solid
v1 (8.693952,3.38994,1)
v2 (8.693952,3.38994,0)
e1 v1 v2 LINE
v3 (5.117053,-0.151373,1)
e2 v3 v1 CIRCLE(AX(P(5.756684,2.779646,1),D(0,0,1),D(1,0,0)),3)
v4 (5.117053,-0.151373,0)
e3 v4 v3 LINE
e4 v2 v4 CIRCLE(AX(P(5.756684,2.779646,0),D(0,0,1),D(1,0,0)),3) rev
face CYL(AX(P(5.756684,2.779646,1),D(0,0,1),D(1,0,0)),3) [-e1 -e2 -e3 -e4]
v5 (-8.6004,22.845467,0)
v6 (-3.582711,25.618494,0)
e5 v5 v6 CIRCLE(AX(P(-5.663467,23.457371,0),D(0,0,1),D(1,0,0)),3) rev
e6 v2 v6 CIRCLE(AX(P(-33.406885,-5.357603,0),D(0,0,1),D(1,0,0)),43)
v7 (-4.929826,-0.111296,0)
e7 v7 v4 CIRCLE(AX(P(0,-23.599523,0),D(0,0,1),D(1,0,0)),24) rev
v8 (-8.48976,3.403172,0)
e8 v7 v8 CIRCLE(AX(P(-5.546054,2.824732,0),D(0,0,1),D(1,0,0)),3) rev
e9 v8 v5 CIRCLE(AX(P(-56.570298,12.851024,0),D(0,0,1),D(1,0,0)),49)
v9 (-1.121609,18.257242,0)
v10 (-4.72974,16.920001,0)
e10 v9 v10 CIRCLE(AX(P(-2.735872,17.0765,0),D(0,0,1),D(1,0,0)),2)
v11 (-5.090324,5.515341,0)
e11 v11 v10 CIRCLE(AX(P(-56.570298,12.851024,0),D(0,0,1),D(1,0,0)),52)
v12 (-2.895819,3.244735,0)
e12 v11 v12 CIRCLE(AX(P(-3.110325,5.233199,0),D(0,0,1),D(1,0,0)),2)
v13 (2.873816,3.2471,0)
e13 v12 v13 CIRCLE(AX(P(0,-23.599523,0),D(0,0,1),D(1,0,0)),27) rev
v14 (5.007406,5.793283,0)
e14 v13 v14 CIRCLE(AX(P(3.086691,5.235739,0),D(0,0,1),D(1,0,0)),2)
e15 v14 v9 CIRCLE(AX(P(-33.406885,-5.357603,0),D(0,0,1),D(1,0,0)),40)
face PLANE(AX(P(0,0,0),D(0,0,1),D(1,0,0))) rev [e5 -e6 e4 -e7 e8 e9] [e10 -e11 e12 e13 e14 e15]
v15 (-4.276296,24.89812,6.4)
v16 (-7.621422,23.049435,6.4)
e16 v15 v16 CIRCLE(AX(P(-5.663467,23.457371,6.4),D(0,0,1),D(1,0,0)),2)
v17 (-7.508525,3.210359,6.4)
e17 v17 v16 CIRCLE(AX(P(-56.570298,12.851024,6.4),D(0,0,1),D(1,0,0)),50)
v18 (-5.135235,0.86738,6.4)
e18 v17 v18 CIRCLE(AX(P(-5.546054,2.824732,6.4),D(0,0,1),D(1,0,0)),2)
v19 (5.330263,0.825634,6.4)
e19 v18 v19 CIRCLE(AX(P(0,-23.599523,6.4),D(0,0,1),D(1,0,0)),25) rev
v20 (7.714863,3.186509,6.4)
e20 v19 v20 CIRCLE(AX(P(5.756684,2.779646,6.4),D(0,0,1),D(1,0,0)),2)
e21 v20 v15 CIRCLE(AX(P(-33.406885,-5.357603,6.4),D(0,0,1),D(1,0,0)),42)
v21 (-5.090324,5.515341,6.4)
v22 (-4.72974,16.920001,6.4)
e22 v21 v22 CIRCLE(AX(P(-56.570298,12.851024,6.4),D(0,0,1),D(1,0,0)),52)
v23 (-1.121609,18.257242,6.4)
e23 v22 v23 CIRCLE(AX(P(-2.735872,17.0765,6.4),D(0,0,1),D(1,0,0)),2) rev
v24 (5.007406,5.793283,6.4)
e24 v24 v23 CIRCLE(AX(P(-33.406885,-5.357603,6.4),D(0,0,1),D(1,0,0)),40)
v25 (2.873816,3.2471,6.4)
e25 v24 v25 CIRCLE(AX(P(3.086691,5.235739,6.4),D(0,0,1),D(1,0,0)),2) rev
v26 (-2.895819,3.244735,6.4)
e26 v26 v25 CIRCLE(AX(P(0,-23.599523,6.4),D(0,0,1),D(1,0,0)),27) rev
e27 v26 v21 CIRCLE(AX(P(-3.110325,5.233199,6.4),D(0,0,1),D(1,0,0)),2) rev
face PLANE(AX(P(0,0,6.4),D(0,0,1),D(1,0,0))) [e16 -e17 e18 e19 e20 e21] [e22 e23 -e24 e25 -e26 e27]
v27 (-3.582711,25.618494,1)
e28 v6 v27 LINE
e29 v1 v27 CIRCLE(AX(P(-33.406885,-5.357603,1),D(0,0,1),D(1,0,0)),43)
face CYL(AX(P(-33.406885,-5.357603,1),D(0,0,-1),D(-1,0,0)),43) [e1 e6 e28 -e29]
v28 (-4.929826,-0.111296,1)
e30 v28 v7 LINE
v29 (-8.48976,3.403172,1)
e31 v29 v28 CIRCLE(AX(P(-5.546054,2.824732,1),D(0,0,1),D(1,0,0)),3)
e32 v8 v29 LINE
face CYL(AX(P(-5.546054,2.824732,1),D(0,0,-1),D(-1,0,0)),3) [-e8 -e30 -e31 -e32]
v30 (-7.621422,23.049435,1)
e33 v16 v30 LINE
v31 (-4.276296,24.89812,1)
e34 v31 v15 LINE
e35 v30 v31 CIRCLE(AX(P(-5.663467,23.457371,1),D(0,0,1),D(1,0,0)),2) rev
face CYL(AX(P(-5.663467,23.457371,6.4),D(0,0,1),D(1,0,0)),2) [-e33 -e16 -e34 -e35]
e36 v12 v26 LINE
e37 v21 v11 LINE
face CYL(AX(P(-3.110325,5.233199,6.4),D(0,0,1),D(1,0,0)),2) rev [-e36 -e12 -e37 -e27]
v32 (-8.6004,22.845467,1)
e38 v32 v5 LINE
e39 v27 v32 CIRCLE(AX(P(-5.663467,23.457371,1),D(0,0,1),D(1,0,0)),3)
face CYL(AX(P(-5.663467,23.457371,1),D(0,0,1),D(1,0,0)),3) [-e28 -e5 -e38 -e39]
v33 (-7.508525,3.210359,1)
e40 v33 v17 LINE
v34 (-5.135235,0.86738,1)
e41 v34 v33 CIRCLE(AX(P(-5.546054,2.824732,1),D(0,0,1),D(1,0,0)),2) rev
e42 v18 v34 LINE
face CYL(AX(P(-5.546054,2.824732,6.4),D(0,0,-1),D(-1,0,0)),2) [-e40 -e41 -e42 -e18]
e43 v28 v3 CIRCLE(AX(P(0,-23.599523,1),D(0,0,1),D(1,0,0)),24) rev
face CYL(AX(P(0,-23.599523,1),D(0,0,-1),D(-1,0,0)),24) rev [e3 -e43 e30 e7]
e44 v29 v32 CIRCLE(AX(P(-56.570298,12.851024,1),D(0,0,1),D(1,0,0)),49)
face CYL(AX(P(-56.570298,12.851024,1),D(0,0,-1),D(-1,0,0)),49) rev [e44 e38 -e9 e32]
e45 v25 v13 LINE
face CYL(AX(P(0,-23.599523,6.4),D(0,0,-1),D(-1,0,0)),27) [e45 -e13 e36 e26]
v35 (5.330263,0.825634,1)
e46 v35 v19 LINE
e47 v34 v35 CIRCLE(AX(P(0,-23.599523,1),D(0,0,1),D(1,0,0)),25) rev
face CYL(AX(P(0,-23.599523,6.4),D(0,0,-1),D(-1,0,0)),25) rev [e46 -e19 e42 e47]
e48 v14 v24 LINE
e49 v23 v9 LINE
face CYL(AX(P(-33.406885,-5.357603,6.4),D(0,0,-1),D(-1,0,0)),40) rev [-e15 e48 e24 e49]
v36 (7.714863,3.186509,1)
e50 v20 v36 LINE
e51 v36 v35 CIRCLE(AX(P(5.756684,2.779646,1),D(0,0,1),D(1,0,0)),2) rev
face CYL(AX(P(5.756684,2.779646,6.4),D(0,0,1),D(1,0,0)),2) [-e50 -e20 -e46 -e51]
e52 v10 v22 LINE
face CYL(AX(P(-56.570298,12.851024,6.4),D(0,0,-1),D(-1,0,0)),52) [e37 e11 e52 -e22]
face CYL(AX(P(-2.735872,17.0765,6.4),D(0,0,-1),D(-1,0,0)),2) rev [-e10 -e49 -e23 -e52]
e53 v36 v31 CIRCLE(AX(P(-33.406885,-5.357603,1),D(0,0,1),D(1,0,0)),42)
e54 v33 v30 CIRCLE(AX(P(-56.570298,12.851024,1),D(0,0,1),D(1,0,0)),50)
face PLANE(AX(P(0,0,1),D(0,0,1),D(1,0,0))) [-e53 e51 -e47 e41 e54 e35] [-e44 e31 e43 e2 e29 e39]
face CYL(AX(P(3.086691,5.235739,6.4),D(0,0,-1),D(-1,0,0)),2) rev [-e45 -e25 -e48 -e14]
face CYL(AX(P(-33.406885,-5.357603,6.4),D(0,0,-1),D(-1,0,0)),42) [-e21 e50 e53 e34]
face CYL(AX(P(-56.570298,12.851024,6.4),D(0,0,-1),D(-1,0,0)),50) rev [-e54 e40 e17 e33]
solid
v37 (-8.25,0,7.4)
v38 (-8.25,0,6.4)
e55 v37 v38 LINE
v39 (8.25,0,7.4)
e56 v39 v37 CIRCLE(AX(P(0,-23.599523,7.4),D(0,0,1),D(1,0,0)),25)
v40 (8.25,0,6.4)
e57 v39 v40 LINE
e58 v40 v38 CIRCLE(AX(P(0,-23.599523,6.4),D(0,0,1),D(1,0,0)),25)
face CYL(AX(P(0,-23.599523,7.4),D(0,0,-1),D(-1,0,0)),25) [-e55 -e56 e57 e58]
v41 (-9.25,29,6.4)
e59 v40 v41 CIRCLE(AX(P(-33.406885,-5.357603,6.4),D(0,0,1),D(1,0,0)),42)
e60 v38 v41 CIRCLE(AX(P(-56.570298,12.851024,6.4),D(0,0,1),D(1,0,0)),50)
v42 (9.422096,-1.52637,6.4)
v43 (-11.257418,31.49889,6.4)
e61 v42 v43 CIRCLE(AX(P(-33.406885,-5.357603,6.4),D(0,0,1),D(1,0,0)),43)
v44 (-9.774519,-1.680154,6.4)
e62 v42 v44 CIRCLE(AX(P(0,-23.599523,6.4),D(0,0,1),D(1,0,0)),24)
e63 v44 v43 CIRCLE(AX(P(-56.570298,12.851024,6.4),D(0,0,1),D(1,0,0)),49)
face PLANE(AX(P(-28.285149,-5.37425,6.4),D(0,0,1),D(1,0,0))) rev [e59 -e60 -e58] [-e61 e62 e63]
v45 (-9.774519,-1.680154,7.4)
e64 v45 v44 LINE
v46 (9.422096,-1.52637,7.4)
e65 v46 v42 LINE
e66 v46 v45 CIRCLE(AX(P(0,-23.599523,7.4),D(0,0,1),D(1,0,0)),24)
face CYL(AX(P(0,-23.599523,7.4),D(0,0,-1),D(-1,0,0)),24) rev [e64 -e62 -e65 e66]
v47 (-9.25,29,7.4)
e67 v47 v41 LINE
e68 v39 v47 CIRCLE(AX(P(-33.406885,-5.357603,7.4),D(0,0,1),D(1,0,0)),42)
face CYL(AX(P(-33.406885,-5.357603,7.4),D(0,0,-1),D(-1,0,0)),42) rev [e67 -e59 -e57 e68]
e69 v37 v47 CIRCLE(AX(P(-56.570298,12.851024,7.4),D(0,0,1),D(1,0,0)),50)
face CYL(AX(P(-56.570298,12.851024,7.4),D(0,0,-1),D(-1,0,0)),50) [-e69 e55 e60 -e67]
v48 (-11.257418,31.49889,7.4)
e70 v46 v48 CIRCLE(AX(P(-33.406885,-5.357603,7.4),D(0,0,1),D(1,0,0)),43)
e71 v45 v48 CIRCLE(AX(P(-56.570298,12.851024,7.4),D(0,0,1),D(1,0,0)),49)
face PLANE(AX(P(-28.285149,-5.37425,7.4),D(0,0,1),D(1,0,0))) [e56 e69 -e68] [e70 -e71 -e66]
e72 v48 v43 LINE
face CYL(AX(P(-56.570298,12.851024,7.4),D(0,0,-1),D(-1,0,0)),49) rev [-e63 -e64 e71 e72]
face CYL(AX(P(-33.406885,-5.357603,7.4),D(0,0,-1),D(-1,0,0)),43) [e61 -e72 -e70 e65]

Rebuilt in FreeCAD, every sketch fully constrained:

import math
import FreeCAD as App
import Part
import Sketcher

V = App.Vector


def edges_at(feature, points):
    """Names of the edges that pass closest to the given points."""
    edges = feature.Shape.Edges
    near = lambda p: min(range(len(edges)), key=lambda i: edges[i].distToShape(Part.Vertex(*p))[0])
    return sorted({f"Edge{near(p) + 1}" for p in points})

doc = App.newDocument("Part")
body = doc.addObject("PartDesign::Body", "Body")

# Sketch on XY plane
sketch1 = body.newObject("Sketcher::SketchObject", "Sketch")
sketch1.AttachmentSupport = (doc.getObject("XY_Plane"), [""])
sketch1.MapMode = "FlatFace"
sketch1.addGeometry([
    Part.ArcOfCircle(Part.Circle(V(-57, 13, 0), V(0, 0, 1), 50), math.radians(-15), math.radians(19)),  # 0
    Part.ArcOfCircle(Part.Circle(V(0, -24, 0), V(0, 0, 1), 25), math.radians(71), math.radians(109)),  # 1
    Part.ArcOfCircle(Part.Circle(V(-33, -5, 0), V(0, 0, 1), 42), math.radians(7), math.radians(55)),  # 2
    Part.ArcOfCircle(Part.Circle(V(-57, 13, 0), V(0, 0, 1), 52), math.radians(-11), math.radians(12)),  # 3
    Part.ArcOfCircle(Part.Circle(V(-33, -5, 0), V(0, 0, 1), 40), math.radians(12), math.radians(46)),  # 4
    Part.ArcOfCircle(Part.Circle(V(0, -24, 0), V(0, 0, 1), 27), math.radians(78), math.radians(102)),  # 5
], False)
sketch1.addConstraint([
    Sketcher.Constraint("Coincident", 0, 1, 1, 2),
    Sketcher.Constraint("Coincident", 1, 1, 2, 1),
    Sketcher.Constraint("Coincident", 2, 2, 0, 2),
    Sketcher.Constraint("Coincident", 3, 2, 4, 2),
    Sketcher.Constraint("Coincident", 4, 1, 5, 1),
    Sketcher.Constraint("Coincident", 5, 2, 3, 1),
    Sketcher.Constraint("Coincident", 3, 3, 0, 3),
    Sketcher.Constraint("Coincident", 4, 3, 2, 3),
    Sketcher.Constraint("Coincident", 5, 3, 1, 3),
    Sketcher.Constraint("Symmetric", 0, 1, 1, 1, -1, 1),
    Sketcher.Constraint("PointOnObject", 1, 3, -2),
    Sketcher.Constraint("Radius", 0, 50.0),
    Sketcher.Constraint("Radius", 1, 25.0),
    Sketcher.Constraint("Radius", 2, 42.0),
    Sketcher.Constraint("Radius", 3, 52.0),
    Sketcher.Constraint("Radius", 4, 40.0),
    Sketcher.Constraint("Radius", 5, 27.0),
    Sketcher.Constraint("DistanceY", -1, 1, 2, 2, 29.0),
    Sketcher.Constraint("DistanceX", 2, 2, 0, 1, 1.0),
    Sketcher.Constraint("DistanceX", 0, 1, 1, 1, 16.5),
])
pad1 = body.newObject("PartDesign::Pad", "Pad")
pad1.Profile = sketch1
pad1.Length = 6.4

# Sketch on XY plane
sketch2 = body.newObject("Sketcher::SketchObject", "Sketch001")
sketch2.AttachmentSupport = (doc.getObject("XY_Plane"), [""])
sketch2.MapMode = "FlatFace"
sketch2.addGeometry([
    Part.ArcOfCircle(Part.Circle(V(-57, 13, 0), V(0, 0, 1), 49), math.radians(-17), math.radians(22)),  # 0
    Part.ArcOfCircle(Part.Circle(V(0, -24, 0), V(0, 0, 1), 24), math.radians(67), math.radians(114)),  # 1
    Part.ArcOfCircle(Part.Circle(V(-33, -5, 0), V(0, 0, 1), 43), math.radians(5), math.radians(59)),  # 2
    Part.ArcOfCircle(Part.Circle(V(-57, 13, 0), V(0, 0, 1), 50), math.radians(-15), math.radians(19)),  # 3
    Part.ArcOfCircle(Part.Circle(V(-33, -5, 0), V(0, 0, 1), 42), math.radians(7), math.radians(55)),  # 4
    Part.ArcOfCircle(Part.Circle(V(0, -24, 0), V(0, 0, 1), 25), math.radians(71), math.radians(109)),  # 5
], False)
sketch2.addConstraint([
    Sketcher.Constraint("Coincident", 0, 1, 1, 2),
    Sketcher.Constraint("Coincident", 1, 1, 2, 1),
    Sketcher.Constraint("Coincident", 2, 2, 0, 2),
    Sketcher.Constraint("Coincident", 3, 2, 4, 2),
    Sketcher.Constraint("Coincident", 4, 1, 5, 1),
    Sketcher.Constraint("Coincident", 5, 2, 3, 1),
    Sketcher.Constraint("Coincident", 3, 3, 0, 3),
    Sketcher.Constraint("Coincident", 4, 3, 2, 3),
    Sketcher.Constraint("Coincident", 5, 3, 1, 3),
    Sketcher.Constraint("Symmetric", 4, 1, 5, 2, -1, 1),
    Sketcher.Constraint("PointOnObject", 1, 3, -2),
    Sketcher.Constraint("Radius", 0, 49.0),
    Sketcher.Constraint("Radius", 1, 24.0),
    Sketcher.Constraint("Radius", 2, 43.0),
    Sketcher.Constraint("Radius", 3, 50.0),
    Sketcher.Constraint("Radius", 4, 42.0),
    Sketcher.Constraint("Radius", 5, 25.0),
    Sketcher.Constraint("DistanceY", -1, 1, 3, 2, 29.0),
    Sketcher.Constraint("DistanceX", 3, 2, 4, 1, 17.5),
    Sketcher.Constraint("DistanceX", 5, 2, 4, 1, 16.5),
])
pad2 = body.newObject("PartDesign::Pad", "Pad001")
pad2.Profile = sketch2
pad2.Length = 1
doc.recompute()

fillet = body.newObject("PartDesign::Fillet", "Fillet")
fillet.Base = (pad2, edges_at(pad2, [(-9.25, 29, 3.7), (8.25, 0, 3.7), (-8.25, 0, 3.7)]))
fillet.Radius = 2
doc.recompute()

fillet2 = body.newObject("PartDesign::Fillet", "Fillet001")
fillet2.Base = (fillet, edges_at(fillet, [(5.757, 2.78, 3.2), (-5.663, 23.457, 3.2), (-5.546, 2.825, 3.2)]))
fillet2.Radius = 2
doc.recompute()

fillet3 = body.newObject("PartDesign::Fillet", "Fillet002")
fillet3.Base = (fillet2, edges_at(fillet2, [(-11.257, 31.499, 0.5), (-9.775, -1.68, 0.5), (9.422, -1.526, 0.5)]))
fillet3.Radius = 3
body2 = doc.addObject("PartDesign::Body", "Body001")

# Sketch on XY plane
sketch3 = body2.newObject("Sketcher::SketchObject", "Sketch002")
sketch3.AttachmentSupport = (doc.getObject("XY_Plane001"), [""])
sketch3.MapMode = "FlatFace"
sketch3.AttachmentOffset = App.Placement(V(0, 0, 6.4), App.Rotation())
sketch3.addGeometry([
    Part.ArcOfCircle(Part.Circle(V(-57, 13, 0), V(0, 0, 1), 49), math.radians(-17), math.radians(22)),  # 0
    Part.ArcOfCircle(Part.Circle(V(0, -24, 0), V(0, 0, 1), 24), math.radians(67), math.radians(114)),  # 1
    Part.ArcOfCircle(Part.Circle(V(-33, -5, 0), V(0, 0, 1), 43), math.radians(5), math.radians(59)),  # 2
    Part.ArcOfCircle(Part.Circle(V(-57, 13, 0), V(0, 0, 1), 50), math.radians(-15), math.radians(19)),  # 3
    Part.ArcOfCircle(Part.Circle(V(-33, -5, 0), V(0, 0, 1), 42), math.radians(7), math.radians(55)),  # 4
    Part.ArcOfCircle(Part.Circle(V(0, -24, 0), V(0, 0, 1), 25), math.radians(71), math.radians(109)),  # 5
], False)
sketch3.addConstraint([
    Sketcher.Constraint("Coincident", 0, 1, 1, 2),
    Sketcher.Constraint("Coincident", 1, 1, 2, 1),
    Sketcher.Constraint("Coincident", 2, 2, 0, 2),
    Sketcher.Constraint("Coincident", 3, 2, 4, 2),
    Sketcher.Constraint("Coincident", 4, 1, 5, 1),
    Sketcher.Constraint("Coincident", 5, 2, 3, 1),
    Sketcher.Constraint("Coincident", 3, 3, 0, 3),
    Sketcher.Constraint("Coincident", 4, 3, 2, 3),
    Sketcher.Constraint("Coincident", 5, 3, 1, 3),
    Sketcher.Constraint("Symmetric", 4, 1, 5, 2, -1, 1),
    Sketcher.Constraint("PointOnObject", 1, 3, -2),
    Sketcher.Constraint("Radius", 0, 49.0),
    Sketcher.Constraint("Radius", 1, 24.0),
    Sketcher.Constraint("Radius", 2, 43.0),
    Sketcher.Constraint("Radius", 3, 50.0),
    Sketcher.Constraint("Radius", 4, 42.0),
    Sketcher.Constraint("Radius", 5, 25.0),
    Sketcher.Constraint("DistanceY", -1, 1, 3, 2, 29.0),
    Sketcher.Constraint("DistanceX", 3, 2, 4, 1, 17.5),
    Sketcher.Constraint("DistanceX", 5, 2, 4, 1, 16.5),
])
pad3 = body2.newObject("PartDesign::Pad", "Pad002")
pad3.Profile = sketch3
pad3.Length = 1

doc.recompute()
